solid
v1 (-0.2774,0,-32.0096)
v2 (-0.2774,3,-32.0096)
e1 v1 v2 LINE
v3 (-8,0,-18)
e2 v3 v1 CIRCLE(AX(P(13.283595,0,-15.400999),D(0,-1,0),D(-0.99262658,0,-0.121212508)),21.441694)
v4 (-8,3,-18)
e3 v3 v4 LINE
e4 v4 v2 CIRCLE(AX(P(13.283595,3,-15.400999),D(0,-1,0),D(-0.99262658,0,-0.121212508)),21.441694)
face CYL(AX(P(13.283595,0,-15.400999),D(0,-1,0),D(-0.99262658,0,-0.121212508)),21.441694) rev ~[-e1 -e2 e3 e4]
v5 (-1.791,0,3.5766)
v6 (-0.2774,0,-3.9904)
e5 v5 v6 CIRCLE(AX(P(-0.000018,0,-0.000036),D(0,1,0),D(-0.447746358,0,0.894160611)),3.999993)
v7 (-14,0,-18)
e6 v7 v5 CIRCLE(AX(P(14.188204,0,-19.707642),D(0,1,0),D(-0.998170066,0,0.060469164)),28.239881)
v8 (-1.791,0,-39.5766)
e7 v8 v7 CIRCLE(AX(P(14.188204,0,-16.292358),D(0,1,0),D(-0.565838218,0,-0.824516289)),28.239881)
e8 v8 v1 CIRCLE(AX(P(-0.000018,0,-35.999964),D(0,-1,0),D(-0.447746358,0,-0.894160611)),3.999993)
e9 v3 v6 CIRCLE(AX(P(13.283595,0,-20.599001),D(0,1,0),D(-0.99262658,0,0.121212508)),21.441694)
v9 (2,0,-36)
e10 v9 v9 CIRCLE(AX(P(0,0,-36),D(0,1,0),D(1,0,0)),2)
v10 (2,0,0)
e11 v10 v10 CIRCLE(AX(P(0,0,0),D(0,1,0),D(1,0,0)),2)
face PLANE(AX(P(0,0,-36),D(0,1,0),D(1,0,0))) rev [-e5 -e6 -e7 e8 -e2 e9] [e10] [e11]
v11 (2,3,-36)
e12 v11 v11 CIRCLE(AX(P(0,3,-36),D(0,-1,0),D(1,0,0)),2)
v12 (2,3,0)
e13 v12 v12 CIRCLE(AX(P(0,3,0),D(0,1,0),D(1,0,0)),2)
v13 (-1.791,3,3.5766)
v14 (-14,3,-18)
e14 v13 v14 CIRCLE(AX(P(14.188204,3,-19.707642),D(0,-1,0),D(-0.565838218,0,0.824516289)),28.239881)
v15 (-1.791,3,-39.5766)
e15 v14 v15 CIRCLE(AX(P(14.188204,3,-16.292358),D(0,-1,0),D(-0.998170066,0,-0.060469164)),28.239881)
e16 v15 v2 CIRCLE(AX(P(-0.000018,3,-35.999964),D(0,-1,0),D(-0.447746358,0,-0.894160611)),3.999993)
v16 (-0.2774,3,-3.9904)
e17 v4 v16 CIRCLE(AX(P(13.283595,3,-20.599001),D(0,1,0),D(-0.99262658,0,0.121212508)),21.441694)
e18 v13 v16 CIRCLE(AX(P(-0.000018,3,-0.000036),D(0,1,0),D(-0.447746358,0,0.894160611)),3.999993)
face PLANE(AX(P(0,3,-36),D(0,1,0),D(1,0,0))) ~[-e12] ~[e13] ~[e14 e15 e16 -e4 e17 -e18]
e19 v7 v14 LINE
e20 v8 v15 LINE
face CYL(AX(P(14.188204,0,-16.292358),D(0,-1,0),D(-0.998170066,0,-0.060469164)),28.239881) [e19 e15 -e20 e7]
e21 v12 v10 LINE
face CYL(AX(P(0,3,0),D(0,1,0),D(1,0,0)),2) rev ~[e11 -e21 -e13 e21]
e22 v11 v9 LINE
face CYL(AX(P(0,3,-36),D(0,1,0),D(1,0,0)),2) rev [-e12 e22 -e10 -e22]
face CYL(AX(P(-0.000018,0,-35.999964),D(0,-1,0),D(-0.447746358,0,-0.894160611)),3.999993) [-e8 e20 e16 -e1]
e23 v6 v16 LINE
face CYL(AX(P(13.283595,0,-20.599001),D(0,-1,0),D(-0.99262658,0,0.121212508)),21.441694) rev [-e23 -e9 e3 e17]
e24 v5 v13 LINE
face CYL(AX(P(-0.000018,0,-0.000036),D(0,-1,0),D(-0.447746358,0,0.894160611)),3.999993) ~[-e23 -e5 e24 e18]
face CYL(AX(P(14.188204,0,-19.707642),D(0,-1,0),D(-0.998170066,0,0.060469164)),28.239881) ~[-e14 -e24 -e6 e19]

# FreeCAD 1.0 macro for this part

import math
import FreeCAD as App
import Part
import Sketcher

V = App.Vector
Q = App.Units.Quantity

doc = App.newDocument("Part")
body = doc.addObject("PartDesign::Body", "Body")

# Sketch on XZ plane
sketch1 = body.newObject("Sketcher::SketchObject", "Sketch")
sketch1.AttachmentSupport = (doc.getObject("XZ_Plane"), [""])
sketch1.MapMode = "FlatFace"
sketch1.addGeometry(Part.ArcOfCircle(Part.Circle(V(14.2, -19.7, 0), V(0, 0, 1), 28.2), math.radians(124), math.radians(177)), False)
sketch1.addGeometry(Part.ArcOfCircle(Part.Circle(V(0, 0, 0), V(0, 0, 1), 4), math.radians(-94), math.radians(117)), False)
sketch1.addGeometry(Part.ArcOfCircle(Part.Circle(V(13.3, -20.6, 0), V(0, 0, 1), 21.4), math.radians(129), math.radians(173)), False)
sketch1.addGeometry(Part.LineSegment(V(-8, -18, 0), V(-14, -18, 0)), False)
sketch1.addConstraint(Sketcher.Constraint("Coincident", 0, 1, 1, 2))
sketch1.addConstraint(Sketcher.Constraint("Coincident", 1, 1, 2, 1))
sketch1.addConstraint(Sketcher.Constraint("Coincident", 2, 2, 3, 1))
sketch1.addConstraint(Sketcher.Constraint("Coincident", 3, 2, 0, 2))
sketch1.addConstraint(Sketcher.Constraint("Horizontal", 3))
sketch1.addConstraint(Sketcher.Constraint("Coincident", 1, 3, -1, 1))
sketch1.addConstraint(Sketcher.Constraint("Radius", 1, Q("4 mm")))
sketch1.addConstraint(Sketcher.Constraint("DistanceX", 3, 2, 3, 1, Q("6 mm")))
sketch1.addConstraint(Sketcher.Constraint("DistanceX", 2, 2, -1, 1, Q("8 mm")))
sketch1.addConstraint(Sketcher.Constraint("DistanceY", 2, 2, -1, 1, Q("18 mm")))
sketch1.addConstraint(Sketcher.Constraint("Radius", 0, Q("28.24 mm")))
sketch1.addConstraint(Sketcher.Constraint("Radius", 2, Q("21.442 mm")))
sketch1.addConstraint(Sketcher.Constraint("DistanceX", -1, 1, 2, 3, Q("13.284 mm")))
sketch1.addConstraint(Sketcher.Constraint("DistanceX", 0, 1, -1, 1, Q("1.791 mm")))
pad1 = body.newObject("PartDesign::Pad", "Pad")
pad1.Profile = sketch1
pad1.Length = 3
pad1.Reversed = True

# Sketch on XZ plane
sketch2 = body.newObject("Sketcher::SketchObject", "Sketch001")
sketch2.AttachmentSupport = (doc.getObject("XZ_Plane"), [""])
sketch2.MapMode = "FlatFace"
sketch2.AttachmentOffset = App.Placement(V(0, 0, -3), App.Rotation())
sketch2.addGeometry(Part.Circle(V(0, 0, 0), V(0, 0, 1), 2), False)
sketch2.addConstraint(Sketcher.Constraint("Coincident", 0, 3, -1, 1))
sketch2.addConstraint(Sketcher.Constraint("Diameter", 0, Q("4 mm")))
pocket1 = body.newObject("PartDesign::Pocket", "Pocket")
pocket1.Profile = sketch2
pocket1.Length = 10
pocket1.Reversed = True
doc.recompute()

datumplane = body.newObject("PartDesign::Plane", "DatumPlane")
datumplane.AttachmentSupport = (doc.getObject("XY_Plane"), [""])
datumplane.MapMode = "FlatFace"
datumplane.AttachmentOffset = App.Placement(V(0, 0, -18), App.Rotation())
mirrored = body.newObject("PartDesign::Mirrored", "Mirrored")
mirrored.Originals = [pad1, pocket1]
mirrored.MirrorPlane = (datumplane, [""])
body.Tip = mirrored

doc.recompute()
